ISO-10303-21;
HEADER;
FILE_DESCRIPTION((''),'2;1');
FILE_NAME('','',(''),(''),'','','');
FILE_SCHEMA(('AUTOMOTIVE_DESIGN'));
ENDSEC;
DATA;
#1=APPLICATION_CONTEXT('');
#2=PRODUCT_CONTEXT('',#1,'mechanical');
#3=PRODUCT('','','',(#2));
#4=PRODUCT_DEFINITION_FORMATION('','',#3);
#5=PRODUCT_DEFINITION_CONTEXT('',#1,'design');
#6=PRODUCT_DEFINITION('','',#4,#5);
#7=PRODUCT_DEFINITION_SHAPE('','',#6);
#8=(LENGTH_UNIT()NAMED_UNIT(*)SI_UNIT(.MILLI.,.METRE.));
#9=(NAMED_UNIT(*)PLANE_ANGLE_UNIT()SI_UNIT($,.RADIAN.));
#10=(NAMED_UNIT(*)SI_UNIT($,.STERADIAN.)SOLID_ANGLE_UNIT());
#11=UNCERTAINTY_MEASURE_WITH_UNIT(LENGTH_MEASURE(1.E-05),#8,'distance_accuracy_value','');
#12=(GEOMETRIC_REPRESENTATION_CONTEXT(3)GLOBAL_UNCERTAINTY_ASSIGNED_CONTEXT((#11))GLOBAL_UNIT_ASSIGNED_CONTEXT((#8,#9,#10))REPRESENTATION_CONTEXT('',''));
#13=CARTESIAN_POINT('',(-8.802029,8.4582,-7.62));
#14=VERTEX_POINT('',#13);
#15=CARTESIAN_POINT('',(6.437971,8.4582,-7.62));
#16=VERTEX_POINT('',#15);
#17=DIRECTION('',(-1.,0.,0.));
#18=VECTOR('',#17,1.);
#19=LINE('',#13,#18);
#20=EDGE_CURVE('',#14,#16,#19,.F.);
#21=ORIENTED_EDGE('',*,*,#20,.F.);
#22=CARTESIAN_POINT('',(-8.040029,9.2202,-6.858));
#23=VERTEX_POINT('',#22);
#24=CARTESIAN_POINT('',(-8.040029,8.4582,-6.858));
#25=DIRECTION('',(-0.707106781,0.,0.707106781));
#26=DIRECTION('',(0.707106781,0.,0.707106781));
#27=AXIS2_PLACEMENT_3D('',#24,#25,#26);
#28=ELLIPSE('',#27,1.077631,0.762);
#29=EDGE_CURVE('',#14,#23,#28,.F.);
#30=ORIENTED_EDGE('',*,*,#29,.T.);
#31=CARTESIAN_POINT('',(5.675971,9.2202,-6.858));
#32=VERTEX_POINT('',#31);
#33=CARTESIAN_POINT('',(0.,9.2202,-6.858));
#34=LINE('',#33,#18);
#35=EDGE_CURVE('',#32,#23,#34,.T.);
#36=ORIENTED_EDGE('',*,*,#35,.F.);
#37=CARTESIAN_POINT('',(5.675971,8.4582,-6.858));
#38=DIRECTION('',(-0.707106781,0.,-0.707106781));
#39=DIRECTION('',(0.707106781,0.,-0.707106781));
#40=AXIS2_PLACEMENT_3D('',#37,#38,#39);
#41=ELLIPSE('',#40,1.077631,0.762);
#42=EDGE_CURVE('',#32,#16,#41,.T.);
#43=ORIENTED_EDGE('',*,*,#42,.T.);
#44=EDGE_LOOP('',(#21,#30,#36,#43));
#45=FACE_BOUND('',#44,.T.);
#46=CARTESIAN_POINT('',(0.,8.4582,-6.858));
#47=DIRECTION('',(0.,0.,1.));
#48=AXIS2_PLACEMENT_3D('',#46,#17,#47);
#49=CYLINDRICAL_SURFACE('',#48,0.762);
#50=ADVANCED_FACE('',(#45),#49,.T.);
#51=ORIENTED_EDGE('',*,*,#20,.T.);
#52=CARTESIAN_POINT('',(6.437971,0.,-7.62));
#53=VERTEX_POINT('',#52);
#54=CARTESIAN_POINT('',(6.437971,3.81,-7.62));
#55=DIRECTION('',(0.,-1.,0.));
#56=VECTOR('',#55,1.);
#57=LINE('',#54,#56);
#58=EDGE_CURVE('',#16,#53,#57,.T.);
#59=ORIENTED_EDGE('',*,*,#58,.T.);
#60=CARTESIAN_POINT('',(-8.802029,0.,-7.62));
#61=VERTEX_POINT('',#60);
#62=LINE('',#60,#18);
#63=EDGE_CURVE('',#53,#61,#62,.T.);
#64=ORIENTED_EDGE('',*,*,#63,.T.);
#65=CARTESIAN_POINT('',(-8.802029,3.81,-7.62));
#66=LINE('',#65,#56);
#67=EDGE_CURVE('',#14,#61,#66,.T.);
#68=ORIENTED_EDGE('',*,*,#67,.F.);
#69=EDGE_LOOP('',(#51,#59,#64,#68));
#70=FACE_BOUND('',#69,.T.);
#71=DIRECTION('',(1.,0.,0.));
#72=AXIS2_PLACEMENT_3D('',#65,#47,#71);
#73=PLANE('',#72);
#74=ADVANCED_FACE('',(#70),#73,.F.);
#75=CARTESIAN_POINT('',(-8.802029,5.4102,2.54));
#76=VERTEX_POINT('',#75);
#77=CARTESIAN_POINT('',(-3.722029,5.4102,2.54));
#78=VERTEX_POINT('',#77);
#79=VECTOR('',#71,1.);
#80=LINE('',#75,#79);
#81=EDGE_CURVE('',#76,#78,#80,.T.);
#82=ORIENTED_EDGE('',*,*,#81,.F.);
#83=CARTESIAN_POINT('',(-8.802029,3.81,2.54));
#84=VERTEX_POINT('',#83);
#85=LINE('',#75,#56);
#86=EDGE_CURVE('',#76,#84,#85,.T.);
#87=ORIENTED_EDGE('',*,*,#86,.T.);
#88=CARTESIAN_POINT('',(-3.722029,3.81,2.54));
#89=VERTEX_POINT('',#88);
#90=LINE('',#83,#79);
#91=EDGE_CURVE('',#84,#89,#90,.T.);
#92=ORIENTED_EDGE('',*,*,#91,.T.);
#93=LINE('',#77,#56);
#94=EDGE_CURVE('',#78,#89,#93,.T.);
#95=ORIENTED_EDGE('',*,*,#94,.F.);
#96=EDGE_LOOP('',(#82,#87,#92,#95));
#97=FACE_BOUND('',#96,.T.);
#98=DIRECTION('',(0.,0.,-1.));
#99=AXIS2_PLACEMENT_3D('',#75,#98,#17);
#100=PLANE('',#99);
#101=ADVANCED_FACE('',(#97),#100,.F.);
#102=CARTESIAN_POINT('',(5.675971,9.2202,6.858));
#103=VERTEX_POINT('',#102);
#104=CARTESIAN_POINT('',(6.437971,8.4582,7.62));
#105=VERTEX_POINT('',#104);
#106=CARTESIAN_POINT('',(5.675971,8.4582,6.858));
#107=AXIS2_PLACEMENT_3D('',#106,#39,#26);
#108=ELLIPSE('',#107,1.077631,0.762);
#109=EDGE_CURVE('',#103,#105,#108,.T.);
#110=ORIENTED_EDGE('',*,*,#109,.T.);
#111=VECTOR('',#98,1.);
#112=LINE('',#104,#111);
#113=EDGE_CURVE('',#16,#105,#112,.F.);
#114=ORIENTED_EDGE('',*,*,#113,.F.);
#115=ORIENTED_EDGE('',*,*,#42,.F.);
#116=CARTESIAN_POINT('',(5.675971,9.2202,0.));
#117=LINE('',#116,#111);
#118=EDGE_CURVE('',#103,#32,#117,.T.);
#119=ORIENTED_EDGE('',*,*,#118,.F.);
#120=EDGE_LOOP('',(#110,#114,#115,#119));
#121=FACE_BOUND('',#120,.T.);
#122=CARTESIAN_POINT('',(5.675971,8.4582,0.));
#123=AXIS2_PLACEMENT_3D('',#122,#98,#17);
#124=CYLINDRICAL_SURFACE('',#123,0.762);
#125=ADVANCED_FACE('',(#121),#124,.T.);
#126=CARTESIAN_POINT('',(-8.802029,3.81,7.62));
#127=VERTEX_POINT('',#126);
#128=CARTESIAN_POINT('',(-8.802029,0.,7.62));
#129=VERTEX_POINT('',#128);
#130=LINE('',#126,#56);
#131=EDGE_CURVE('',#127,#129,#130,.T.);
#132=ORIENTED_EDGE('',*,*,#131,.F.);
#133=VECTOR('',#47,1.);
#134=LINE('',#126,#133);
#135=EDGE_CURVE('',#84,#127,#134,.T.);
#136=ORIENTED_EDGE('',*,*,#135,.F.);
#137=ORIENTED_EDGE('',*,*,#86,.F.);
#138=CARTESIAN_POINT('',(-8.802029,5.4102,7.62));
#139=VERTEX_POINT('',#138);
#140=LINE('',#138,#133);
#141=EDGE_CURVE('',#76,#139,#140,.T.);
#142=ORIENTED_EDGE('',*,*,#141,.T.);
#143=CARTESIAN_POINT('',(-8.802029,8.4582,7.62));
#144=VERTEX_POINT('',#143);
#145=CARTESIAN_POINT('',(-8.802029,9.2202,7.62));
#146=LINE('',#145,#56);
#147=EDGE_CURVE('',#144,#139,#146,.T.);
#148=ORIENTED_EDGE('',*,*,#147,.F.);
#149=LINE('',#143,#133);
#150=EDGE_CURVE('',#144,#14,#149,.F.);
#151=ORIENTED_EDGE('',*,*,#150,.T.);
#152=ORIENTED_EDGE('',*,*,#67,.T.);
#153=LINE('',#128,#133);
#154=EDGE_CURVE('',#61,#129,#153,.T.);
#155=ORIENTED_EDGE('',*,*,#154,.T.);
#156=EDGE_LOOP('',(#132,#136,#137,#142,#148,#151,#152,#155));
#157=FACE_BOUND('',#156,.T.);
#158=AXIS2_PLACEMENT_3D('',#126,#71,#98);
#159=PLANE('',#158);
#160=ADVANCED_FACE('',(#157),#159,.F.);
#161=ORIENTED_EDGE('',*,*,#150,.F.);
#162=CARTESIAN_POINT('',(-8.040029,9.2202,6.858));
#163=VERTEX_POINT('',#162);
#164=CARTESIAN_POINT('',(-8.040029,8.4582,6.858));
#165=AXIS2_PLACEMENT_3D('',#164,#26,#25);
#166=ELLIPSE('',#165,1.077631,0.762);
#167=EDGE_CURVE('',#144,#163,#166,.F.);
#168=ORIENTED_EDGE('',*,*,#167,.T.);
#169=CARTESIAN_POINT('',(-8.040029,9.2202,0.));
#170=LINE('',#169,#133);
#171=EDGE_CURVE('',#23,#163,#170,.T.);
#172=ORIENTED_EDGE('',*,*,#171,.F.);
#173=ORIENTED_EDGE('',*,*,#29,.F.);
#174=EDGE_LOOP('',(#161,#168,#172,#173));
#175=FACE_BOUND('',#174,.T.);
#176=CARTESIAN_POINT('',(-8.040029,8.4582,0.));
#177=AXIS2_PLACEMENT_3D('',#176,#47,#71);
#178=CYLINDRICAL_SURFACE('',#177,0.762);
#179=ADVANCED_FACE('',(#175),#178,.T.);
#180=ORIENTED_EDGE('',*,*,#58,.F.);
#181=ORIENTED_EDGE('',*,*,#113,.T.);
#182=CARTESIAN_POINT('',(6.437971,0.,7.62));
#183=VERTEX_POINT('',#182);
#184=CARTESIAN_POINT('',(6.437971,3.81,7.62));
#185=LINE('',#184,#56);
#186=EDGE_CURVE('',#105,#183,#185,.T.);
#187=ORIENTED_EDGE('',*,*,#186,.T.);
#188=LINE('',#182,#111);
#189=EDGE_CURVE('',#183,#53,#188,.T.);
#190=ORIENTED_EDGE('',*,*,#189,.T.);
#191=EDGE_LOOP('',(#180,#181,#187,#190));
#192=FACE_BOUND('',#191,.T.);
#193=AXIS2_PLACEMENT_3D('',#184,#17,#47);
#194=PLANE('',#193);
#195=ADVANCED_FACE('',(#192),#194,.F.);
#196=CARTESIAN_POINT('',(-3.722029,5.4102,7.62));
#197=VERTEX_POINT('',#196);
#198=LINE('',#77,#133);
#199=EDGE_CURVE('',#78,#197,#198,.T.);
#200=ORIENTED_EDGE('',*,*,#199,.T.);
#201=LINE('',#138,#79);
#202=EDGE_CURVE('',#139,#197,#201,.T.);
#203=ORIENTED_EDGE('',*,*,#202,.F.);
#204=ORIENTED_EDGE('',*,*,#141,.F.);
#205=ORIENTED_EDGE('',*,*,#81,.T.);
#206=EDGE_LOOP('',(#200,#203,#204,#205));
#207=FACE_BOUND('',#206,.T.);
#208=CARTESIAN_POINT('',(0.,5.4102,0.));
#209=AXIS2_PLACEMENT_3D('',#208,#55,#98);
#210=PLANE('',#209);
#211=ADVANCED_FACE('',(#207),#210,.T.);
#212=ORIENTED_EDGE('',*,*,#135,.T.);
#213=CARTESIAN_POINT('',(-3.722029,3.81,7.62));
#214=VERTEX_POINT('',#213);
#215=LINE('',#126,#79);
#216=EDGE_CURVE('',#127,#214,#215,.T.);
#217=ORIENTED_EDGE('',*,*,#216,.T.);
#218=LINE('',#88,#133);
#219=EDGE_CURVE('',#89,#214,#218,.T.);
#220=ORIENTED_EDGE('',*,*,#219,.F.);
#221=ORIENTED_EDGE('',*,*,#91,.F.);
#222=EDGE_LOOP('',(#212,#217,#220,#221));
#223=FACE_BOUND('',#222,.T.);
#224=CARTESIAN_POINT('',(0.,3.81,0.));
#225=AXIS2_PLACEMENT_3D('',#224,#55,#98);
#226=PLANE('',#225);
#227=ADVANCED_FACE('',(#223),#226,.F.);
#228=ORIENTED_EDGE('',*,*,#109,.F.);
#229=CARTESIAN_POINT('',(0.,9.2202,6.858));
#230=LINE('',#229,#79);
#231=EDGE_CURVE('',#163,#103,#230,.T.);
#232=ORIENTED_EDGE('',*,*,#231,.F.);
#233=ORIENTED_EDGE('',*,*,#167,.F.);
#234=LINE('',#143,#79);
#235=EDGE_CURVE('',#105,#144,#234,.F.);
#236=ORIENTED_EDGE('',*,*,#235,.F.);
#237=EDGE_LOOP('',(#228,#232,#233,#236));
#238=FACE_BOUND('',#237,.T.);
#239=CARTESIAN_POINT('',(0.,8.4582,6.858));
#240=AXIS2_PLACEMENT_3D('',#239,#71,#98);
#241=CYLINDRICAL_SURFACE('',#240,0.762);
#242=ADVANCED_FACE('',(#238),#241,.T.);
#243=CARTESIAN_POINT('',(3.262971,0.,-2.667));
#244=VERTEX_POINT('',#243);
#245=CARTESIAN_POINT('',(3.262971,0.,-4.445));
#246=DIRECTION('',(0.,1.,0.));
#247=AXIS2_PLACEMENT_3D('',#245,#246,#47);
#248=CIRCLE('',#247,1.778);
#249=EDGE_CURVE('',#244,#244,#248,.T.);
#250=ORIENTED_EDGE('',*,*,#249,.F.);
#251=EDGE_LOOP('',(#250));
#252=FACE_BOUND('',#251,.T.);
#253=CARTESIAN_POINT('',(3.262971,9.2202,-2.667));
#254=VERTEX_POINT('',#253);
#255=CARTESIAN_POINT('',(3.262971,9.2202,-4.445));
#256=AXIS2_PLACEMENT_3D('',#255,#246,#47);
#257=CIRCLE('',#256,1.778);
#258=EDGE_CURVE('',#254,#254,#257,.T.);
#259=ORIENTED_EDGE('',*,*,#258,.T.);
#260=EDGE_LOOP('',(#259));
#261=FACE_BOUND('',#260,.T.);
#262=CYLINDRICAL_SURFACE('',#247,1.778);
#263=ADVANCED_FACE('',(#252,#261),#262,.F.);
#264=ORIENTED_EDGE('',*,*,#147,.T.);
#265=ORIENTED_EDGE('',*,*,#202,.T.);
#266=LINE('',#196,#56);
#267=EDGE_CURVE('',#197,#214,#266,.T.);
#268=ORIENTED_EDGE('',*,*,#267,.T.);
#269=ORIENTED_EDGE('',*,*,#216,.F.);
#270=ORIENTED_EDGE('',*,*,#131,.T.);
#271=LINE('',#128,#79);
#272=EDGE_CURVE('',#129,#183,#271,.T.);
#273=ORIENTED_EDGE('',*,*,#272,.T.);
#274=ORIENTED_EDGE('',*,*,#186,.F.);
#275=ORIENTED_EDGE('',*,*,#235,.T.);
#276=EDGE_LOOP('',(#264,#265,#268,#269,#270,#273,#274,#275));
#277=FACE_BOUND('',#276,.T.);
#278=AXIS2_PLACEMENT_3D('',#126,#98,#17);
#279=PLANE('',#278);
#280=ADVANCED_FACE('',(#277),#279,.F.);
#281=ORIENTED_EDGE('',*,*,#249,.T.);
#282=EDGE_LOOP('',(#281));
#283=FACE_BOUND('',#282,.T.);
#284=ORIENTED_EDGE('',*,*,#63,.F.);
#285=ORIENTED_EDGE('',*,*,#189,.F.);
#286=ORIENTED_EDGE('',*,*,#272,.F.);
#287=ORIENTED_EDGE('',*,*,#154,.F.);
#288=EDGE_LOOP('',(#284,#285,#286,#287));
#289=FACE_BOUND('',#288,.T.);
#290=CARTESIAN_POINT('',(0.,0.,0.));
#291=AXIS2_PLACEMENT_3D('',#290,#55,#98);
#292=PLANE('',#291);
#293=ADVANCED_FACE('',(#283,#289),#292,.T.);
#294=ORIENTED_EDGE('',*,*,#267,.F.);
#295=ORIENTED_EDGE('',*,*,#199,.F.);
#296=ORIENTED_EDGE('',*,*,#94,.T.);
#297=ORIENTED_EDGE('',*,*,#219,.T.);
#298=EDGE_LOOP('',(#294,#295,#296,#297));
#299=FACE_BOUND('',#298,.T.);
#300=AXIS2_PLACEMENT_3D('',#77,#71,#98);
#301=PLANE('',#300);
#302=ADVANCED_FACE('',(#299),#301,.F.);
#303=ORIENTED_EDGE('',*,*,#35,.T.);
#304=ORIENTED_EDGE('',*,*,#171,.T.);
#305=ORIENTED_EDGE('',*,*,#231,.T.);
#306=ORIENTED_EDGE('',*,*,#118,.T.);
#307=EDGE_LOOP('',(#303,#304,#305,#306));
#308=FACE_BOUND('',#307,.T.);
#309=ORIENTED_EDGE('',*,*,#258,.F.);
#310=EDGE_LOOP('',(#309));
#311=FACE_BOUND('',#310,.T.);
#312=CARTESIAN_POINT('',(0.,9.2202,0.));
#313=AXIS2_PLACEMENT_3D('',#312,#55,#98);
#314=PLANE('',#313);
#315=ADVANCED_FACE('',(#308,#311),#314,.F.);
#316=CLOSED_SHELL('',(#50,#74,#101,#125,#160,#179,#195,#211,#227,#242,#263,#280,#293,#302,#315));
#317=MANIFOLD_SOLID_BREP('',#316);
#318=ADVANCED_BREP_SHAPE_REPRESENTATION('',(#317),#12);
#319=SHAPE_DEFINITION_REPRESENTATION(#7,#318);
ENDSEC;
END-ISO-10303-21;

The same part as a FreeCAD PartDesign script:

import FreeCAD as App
import Part
import Sketcher

V = App.Vector
Q = App.Units.Quantity


def edges_at(feature, points):
    """Names of the edges that pass closest to the given points."""
    edges = feature.Shape.Edges
    near = lambda p: min(range(len(edges)), key=lambda i: edges[i].distToShape(Part.Vertex(*p))[0])
    return sorted({f"Edge{near(p) + 1}" for p in points})

doc = App.newDocument("Part")
body = doc.addObject("PartDesign::Body", "Body")

# Sketch on XZ plane
sketch1 = doc.addObject("Sketcher::SketchObject", "Sketch")
body.addObject(sketch1)
sketch1.AttachmentSupport = (doc.XZ_Plane, [""])
sketch1.MapMode = "FlatFace"
sketch1.addGeometry(Part.LineSegment(V(-9, -8, 0), V(-9, 8, 0)), False)
sketch1.addGeometry(Part.LineSegment(V(-9, 8, 0), V(6, 8, 0)), False)
sketch1.addGeometry(Part.LineSegment(V(6, 8, 0), V(6, -8, 0)), False)
sketch1.addGeometry(Part.LineSegment(V(6, -8, 0), V(-9, -8, 0)), False)
sketch1.addConstraint(Sketcher.Constraint("Coincident", 0, 2, 1, 1))
sketch1.addConstraint(Sketcher.Constraint("Coincident", 1, 2, 2, 1))
sketch1.addConstraint(Sketcher.Constraint("Coincident", 2, 2, 3, 1))
sketch1.addConstraint(Sketcher.Constraint("Coincident", 3, 2, 0, 1))
sketch1.addConstraint(Sketcher.Constraint("Vertical", 0))
sketch1.addConstraint(Sketcher.Constraint("Horizontal", 1))
sketch1.addConstraint(Sketcher.Constraint("Vertical", 2))
sketch1.addConstraint(Sketcher.Constraint("Horizontal", 3))
sketch1.addConstraint(Sketcher.Constraint("Equal", 3, 0))
sketch1.addConstraint(Sketcher.Constraint("DistanceX", 1, 1, 1, 2, Q("0.6 in")))
sketch1.addConstraint(Sketcher.Constraint("DistanceY", -1, 1, 0, 2, Q("0.3 in")))
sketch1.addConstraint(Sketcher.Constraint("DistanceX", 0, 2, -1, 1, Q("8.802029 mm")))
pad1 = doc.addObject("PartDesign::Pad", "Pad")
body.addObject(pad1)
pad1.Profile = sketch1
pad1.Length = Q("0.15 in")
pad1.Reversed = True

# Sketch on XZ plane
sketch2 = doc.addObject("Sketcher::SketchObject", "Sketch001")
body.addObject(sketch2)
sketch2.AttachmentSupport = (doc.XZ_Plane, [""])
sketch2.MapMode = "FlatFace"
sketch2.AttachmentOffset = App.Placement(V(0, 0, -0.15 * 25.4), App.Rotation())
sketch2.addGeometry(Part.LineSegment(V(-9, 3, 0), V(-4, 3, 0)), False)
sketch2.addGeometry(Part.LineSegment(V(-4, 3, 0), V(-4, 8, 0)), False)
sketch2.addGeometry(Part.LineSegment(V(-4, 8, 0), V(6, 8, 0)), False)
sketch2.addGeometry(Part.LineSegment(V(6, 8, 0), V(6, -8, 0)), False)
sketch2.addGeometry(Part.LineSegment(V(6, -8, 0), V(-9, -8, 0)), False)
sketch2.addGeometry(Part.LineSegment(V(-9, -8, 0), V(-9, 3, 0)), False)
sketch2.addConstraint(Sketcher.Constraint("Coincident", 0, 2, 1, 1))
sketch2.addConstraint(Sketcher.Constraint("Coincident", 1, 2, 2, 1))
sketch2.addConstraint(Sketcher.Constraint("Coincident", 2, 2, 3, 1))
sketch2.addConstraint(Sketcher.Constraint("Coincident", 3, 2, 4, 1))
sketch2.addConstraint(Sketcher.Constraint("Coincident", 4, 2, 5, 1))
sketch2.addConstraint(Sketcher.Constraint("Coincident", 5, 2, 0, 1))
sketch2.addConstraint(Sketcher.Constraint("Horizontal", 0))
sketch2.addConstraint(Sketcher.Constraint("Vertical", 1))
sketch2.addConstraint(Sketcher.Constraint("Horizontal", 2))
sketch2.addConstraint(Sketcher.Constraint("Vertical", 3))
sketch2.addConstraint(Sketcher.Constraint("Horizontal", 4))
sketch2.addConstraint(Sketcher.Constraint("Vertical", 5))
sketch2.addConstraint(Sketcher.Constraint("Equal", 0, 1))
sketch2.addConstraint(Sketcher.Constraint("Equal", 4, 3))
sketch2.addConstraint(Sketcher.Constraint("DistanceX", 0, 1, 0, 2, Q("0.2 in")))
sketch2.addConstraint(Sketcher.Constraint("DistanceX", 2, 1, 2, 2, Q("0.4 in")))
sketch2.addConstraint(Sketcher.Constraint("DistanceY", -1, 1, 0, 2, Q("0.1 in")))
sketch2.addConstraint(Sketcher.Constraint("DistanceX", 0, 2, -1, 1, Q("3.722029 mm")))
pad2 = doc.addObject("PartDesign::Pad", "Pad001")
body.addObject(pad2)
pad2.Profile = sketch2
pad2.Length = Q("0.063 in")
pad2.Reversed = True

# Sketch on XZ plane
sketch3 = doc.addObject("Sketcher::SketchObject", "Sketch002")
body.addObject(sketch3)
sketch3.AttachmentSupport = (doc.XZ_Plane, [""])
sketch3.MapMode = "FlatFace"
sketch3.AttachmentOffset = App.Placement(V(0, 0, -0.213 * 25.4), App.Rotation())
sketch3.addGeometry(Part.LineSegment(V(-9, -8, 0), V(-9, 8, 0)), False)
sketch3.addGeometry(Part.LineSegment(V(-9, 8, 0), V(6, 8, 0)), False)
sketch3.addGeometry(Part.LineSegment(V(6, 8, 0), V(6, -8, 0)), False)
sketch3.addGeometry(Part.LineSegment(V(6, -8, 0), V(-9, -8, 0)), False)
sketch3.addConstraint(Sketcher.Constraint("Coincident", 0, 2, 1, 1))
sketch3.addConstraint(Sketcher.Constraint("Coincident", 1, 2, 2, 1))
sketch3.addConstraint(Sketcher.Constraint("Coincident", 2, 2, 3, 1))
sketch3.addConstraint(Sketcher.Constraint("Coincident", 3, 2, 0, 1))
sketch3.addConstraint(Sketcher.Constraint("Vertical", 0))
sketch3.addConstraint(Sketcher.Constraint("Horizontal", 1))
sketch3.addConstraint(Sketcher.Constraint("Vertical", 2))
sketch3.addConstraint(Sketcher.Constraint("Horizontal", 3))
sketch3.addConstraint(Sketcher.Constraint("Equal", 3, 0))
sketch3.addConstraint(Sketcher.Constraint("DistanceX", 1, 1, 1, 2, Q("0.6 in")))
sketch3.addConstraint(Sketcher.Constraint("DistanceY", -1, 1, 0, 2, Q("0.3 in")))
sketch3.addConstraint(Sketcher.Constraint("DistanceX", 0, 2, -1, 1, Q("8.802029 mm")))
pad3 = doc.addObject("PartDesign::Pad", "Pad002")
body.addObject(pad3)
pad3.Profile = sketch3
pad3.Length = Q("0.15 in")
pad3.Reversed = True

# Sketch on XZ plane
sketch4 = doc.addObject("Sketcher::SketchObject", "Sketch003")
body.addObject(sketch4)
sketch4.AttachmentSupport = (doc.XZ_Plane, [""])
sketch4.MapMode = "FlatFace"
sketch4.AttachmentOffset = App.Placement(V(0, 0, -0.363 * 25.4), App.Rotation())
sketch4.addGeometry(Part.Circle(V(3.3, -4.4, 0), V(0, 0, 1), 1.8), False)
sketch4.addConstraint(Sketcher.Constraint("Diameter", 0, Q("0.14 in")))
sketch4.addConstraint(Sketcher.Constraint("DistanceY", 0, 3, -1, 1, Q("0.175 in")))
sketch4.addConstraint(Sketcher.Constraint("DistanceX", -1, 1, 0, 3, Q("3.262971 mm")))
pocket1 = doc.addObject("PartDesign::Pocket", "Pocket")
body.addObject(pocket1)
pocket1.Profile = sketch4
pocket1.Type = "ThroughAll"
pocket1.Reversed = True
doc.recompute()

fillet = doc.addObject("PartDesign::Fillet", "Fillet")
body.addObject(fillet)
fillet.Base = (pocket1, edges_at(pocket1, [
    (-8.802, 9.22, 0),
    (-1.182, 9.22, 7.62),
    (6.438, 9.22, 0),
    (-1.182, 9.22, -7.62),
]))
fillet.Radius = Q("0.03 in")

doc.recompute()
